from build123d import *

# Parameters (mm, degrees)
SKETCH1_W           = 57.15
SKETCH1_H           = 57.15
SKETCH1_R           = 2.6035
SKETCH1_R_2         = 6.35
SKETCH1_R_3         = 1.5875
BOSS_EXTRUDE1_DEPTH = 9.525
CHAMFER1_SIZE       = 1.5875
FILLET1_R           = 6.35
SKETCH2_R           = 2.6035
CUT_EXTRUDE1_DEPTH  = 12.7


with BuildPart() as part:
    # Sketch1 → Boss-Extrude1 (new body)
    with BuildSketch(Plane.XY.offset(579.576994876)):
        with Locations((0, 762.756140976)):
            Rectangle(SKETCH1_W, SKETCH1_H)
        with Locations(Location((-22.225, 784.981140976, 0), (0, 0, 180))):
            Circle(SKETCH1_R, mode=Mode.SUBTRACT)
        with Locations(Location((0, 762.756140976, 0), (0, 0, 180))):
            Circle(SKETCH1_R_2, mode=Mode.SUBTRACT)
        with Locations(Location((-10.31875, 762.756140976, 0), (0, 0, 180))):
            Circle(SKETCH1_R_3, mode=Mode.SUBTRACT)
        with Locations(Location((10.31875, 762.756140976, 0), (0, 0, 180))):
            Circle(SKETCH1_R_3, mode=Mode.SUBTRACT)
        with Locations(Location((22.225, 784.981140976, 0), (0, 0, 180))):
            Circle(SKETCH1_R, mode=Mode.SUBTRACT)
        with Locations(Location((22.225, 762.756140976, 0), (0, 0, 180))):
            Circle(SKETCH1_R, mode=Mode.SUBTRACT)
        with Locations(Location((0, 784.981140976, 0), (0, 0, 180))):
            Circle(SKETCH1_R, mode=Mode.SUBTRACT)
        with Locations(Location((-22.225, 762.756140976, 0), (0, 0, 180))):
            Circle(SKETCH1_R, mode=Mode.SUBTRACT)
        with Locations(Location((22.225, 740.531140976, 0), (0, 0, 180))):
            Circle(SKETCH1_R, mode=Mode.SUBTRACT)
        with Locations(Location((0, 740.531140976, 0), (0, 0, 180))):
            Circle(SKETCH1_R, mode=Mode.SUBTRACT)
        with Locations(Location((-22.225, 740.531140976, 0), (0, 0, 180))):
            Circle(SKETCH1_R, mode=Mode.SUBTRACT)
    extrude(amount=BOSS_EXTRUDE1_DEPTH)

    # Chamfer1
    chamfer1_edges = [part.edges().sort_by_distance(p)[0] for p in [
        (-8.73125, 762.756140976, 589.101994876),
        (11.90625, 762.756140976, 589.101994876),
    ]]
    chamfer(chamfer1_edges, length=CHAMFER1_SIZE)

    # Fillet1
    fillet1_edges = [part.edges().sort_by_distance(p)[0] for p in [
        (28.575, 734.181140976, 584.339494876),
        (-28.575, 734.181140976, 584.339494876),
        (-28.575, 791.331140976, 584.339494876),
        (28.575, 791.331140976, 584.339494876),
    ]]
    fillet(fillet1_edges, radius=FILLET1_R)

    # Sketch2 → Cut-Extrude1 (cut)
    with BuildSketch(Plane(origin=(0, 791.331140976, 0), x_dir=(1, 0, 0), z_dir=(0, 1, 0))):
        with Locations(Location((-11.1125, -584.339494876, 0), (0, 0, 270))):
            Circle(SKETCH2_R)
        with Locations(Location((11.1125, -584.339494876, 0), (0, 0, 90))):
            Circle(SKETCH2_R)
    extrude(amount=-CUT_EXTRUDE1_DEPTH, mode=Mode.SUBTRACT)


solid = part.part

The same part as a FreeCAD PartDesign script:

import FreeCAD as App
import Part
import Sketcher
from FreeCAD import Vector
Q = App.Units.Quantity


def edges_at(feature, points):
    """Names of the edges that pass closest to the given points."""
    edges = feature.Shape.Edges
    near = lambda p: min(range(len(edges)), key=lambda i: edges[i].distToShape(Part.Vertex(*p))[0])
    return sorted({f"Edge{near(p) + 1}" for p in points})


def add_polygon(sketch, points):
    """Adds a closed chain of lines whose ends are joined by coincident constraints."""
    first, n = sketch.GeometryCount, len(points)
    for a, b in zip(points, points[1:] + points[:1]):
        sketch.addGeometry(Part.LineSegment(App.Vector(*a, 0), App.Vector(*b, 0)), False)
    for i in range(n):
        sketch.addConstraint(Sketcher.Constraint("Coincident", first + i, 2, first + (i + 1) % n, 1))

doc = App.newDocument("Part")
params = doc.addObject("Spreadsheet::Sheet", "Params")
for row, (alias, value) in enumerate([
    ("sketch1_diameter", "0.5 in"),
    ("sketch1_diameter2", "0.205 in"),
    ("sketch1_diameter3", "0.125 in"),
    ("sketch1_width", "2.25 in"),
    ("pad1_length", "0.375 in"),
    ("chamfer_size", "0.0625 in"),
    ("fillet_radius", "0.25 in"),
    ("sketch2_diameter", "0.205 in"),
    ("pocket1_length", "0.5 in"),
], start=1):
    params.set(f"A{row}", alias)
    params.set(f"B{row}", "=" + value)
    params.setAlias(f"B{row}", alias)

body = doc.addObject("PartDesign::Body", "Body")

sketch1 = doc.addObject("Sketcher::SketchObject", "Sketch")
body.addObject(sketch1)
sketch1.AttachmentSupport = (doc.XY_Plane, [""])
sketch1.MapMode = "FlatFace"
sketch1.AttachmentOffset = App.Placement(Vector(0, 0, 579.576995), App.Rotation())
add_polygon(sketch1, [(-28.575, 791.331141), (-28.575, 734.181141), (28.575, 734.181141), (28.575, 791.331141)])
sketch1.addGeometry(Part.Circle(Vector(-22.225, 740.531141, 0), Vector(0, 0, 1), 2.6035), False)
sketch1.addGeometry(Part.Circle(Vector(0, 740.531141, 0), Vector(0, 0, 1), 2.6035), False)
sketch1.addGeometry(Part.Circle(Vector(-22.225, 762.756141, 0), Vector(0, 0, 1), 2.6035), False)
sketch1.addGeometry(Part.Circle(Vector(-10.31875, 762.756141, 0), Vector(0, 0, 1), 1.5875), False)
sketch1.addGeometry(Part.Circle(Vector(0, 762.756141, 0), Vector(0, 0, 1), 6.35), False)
sketch1.addGeometry(Part.Circle(Vector(22.225, 740.531141, 0), Vector(0, 0, 1), 2.6035), False)
sketch1.addGeometry(Part.Circle(Vector(10.31875, 762.756141, 0), Vector(0, 0, 1), 1.5875), False)
sketch1.addGeometry(Part.Circle(Vector(22.225, 762.756141, 0), Vector(0, 0, 1), 2.6035), False)
sketch1.addGeometry(Part.Circle(Vector(-22.225, 784.981141, 0), Vector(0, 0, 1), 2.6035), False)
sketch1.addGeometry(Part.Circle(Vector(0, 784.981141, 0), Vector(0, 0, 1), 2.6035), False)
sketch1.addGeometry(Part.Circle(Vector(22.225, 784.981141, 0), Vector(0, 0, 1), 2.6035), False)
sketch1.addConstraint([
    Sketcher.Constraint("Vertical", 0),
    Sketcher.Constraint("Horizontal", 1),
    Sketcher.Constraint("Vertical", 2),
    Sketcher.Constraint("Horizontal", 3),
    Sketcher.Constraint("Equal", 4, 5),
    Sketcher.Constraint("Equal", 5, 6),
    Sketcher.Constraint("Equal", 6, 9),
    Sketcher.Constraint("Equal", 7, 10),
    Sketcher.Constraint("Equal", 9, 11),
    Sketcher.Constraint("Equal", 11, 12),
    Sketcher.Constraint("Equal", 12, 13),
    Sketcher.Constraint("Equal", 13, 14),
    Sketcher.Constraint("Symmetric", 4, 3, 9, 3, -2),
    Sketcher.Constraint("Symmetric", 7, 3, 10, 3, -2),
    Sketcher.Constraint("Symmetric", 6, 3, 11, 3, -2),
    Sketcher.Constraint("Symmetric", 12, 3, 14, 3, -2),
    Sketcher.Constraint("PointOnObject", 5, 3, -2),
    Sketcher.Constraint("PointOnObject", 8, 3, -2),
    Sketcher.Constraint("PointOnObject", 13, 3, -2),
    Sketcher.Constraint("Horizontal", 4, 3, 5, 3),
    Sketcher.Constraint("Horizontal", 6, 3, 7, 3),
    Sketcher.Constraint("Horizontal", 7, 3, 8, 3),
    Sketcher.Constraint("Horizontal", 12, 3, 13, 3),
    Sketcher.Constraint("Vertical", 4, 3, 6, 3),
    Sketcher.Constraint("Vertical", 6, 3, 12, 3),
    Sketcher.Constraint("Equal", 3, 0),
    Sketcher.Constraint("Diameter", 8, Q("0.5 in")),
    Sketcher.Constraint("Diameter", 4, Q("0.205 in")),
    Sketcher.Constraint("Diameter", 7, Q("0.125 in")),
    Sketcher.Constraint("DistanceX", 1, 1, 1, 2, Q("2.25 in")),
    Sketcher.Constraint("DistanceX", 4, 3, 9, 3, Q("1.75 in")),
    Sketcher.Constraint("DistanceY", 4, 3, 12, 3, Q("1.75 in")),
    Sketcher.Constraint("DistanceX", 0, 2, 4, 3, Q("0.25 in")),
    Sketcher.Constraint("DistanceY", 0, 2, 4, 3, Q("0.25 in")),
    Sketcher.Constraint("DistanceX", 7, 3, -1, 1, Q("0.40625 in")),
    Sketcher.Constraint("DistanceY", 4, 3, 6, 3, Q("0.875 in")),
    Sketcher.Constraint("DistanceY", -1, 1, 4, 3, Q("740.531141 mm")),
])
sketch1.setExpression("Constraints[30]", "Params.sketch1_diameter")
sketch1.setExpression("Constraints[31]", "Params.sketch1_diameter2")
sketch1.setExpression("Constraints[32]", "Params.sketch1_diameter3")
sketch1.setExpression("Constraints[33]", "Params.sketch1_width")
pad1 = doc.addObject("PartDesign::Pad", "Pad")
body.addObject(pad1)
pad1.Profile = sketch1
pad1.setExpression("Length", "Params.pad1_length")
doc.recompute()

chamfer = doc.addObject("PartDesign::Chamfer", "Chamfer")
body.addObject(chamfer)
chamfer.Base = (pad1, edges_at(pad1, [(-8.731, 762.756, 589.102), (11.906, 762.756, 589.102)]))
chamfer.setExpression("Size", "Params.chamfer_size")
doc.recompute()

fillet = doc.addObject("PartDesign::Fillet", "Fillet")
body.addObject(fillet)
fillet.Base = (chamfer, edges_at(chamfer, [
    (28.575, 734.181, 584.339),
    (-28.575, 734.181, 584.339),
    (-28.575, 791.331, 584.339),
    (28.575, 791.331, 584.339),
]))
fillet.setExpression("Radius", "Params.fillet_radius")

sketch2 = doc.addObject("Sketcher::SketchObject", "Sketch001")
body.addObject(sketch2)
sketch2.AttachmentSupport = (doc.XZ_Plane, [""])
sketch2.MapMode = "FlatFace"
sketch2.AttachmentOffset = App.Placement(Vector(0, 0, -791.331141), App.Rotation())
sketch2.addGeometry([
    Part.Circle(Vector(-11.1125, 584.339495, 0), Vector(0, 0, 1), 2.6035),
    Part.Circle(Vector(11.1125, 584.339495, 0), Vector(0, 0, 1), 2.6035),
], False)
sketch2.addConstraint([
    Sketcher.Constraint("Equal", 0, 1),
    Sketcher.Constraint("Symmetric", 0, 3, 1, 3, -2),
    Sketcher.Constraint("Diameter", 0, Q("0.205 in")),
    Sketcher.Constraint("DistanceX", 0, 3, -1, 1, Q("0.4375 in")),
    Sketcher.Constraint("DistanceY", -1, 1, 0, 3, Q("584.339495 mm")),
])
sketch2.setExpression("Constraints[2]", "Params.sketch2_diameter")
pocket1 = doc.addObject("PartDesign::Pocket", "Pocket")
body.addObject(pocket1)
pocket1.Profile = sketch2
pocket1.setExpression("Length", "Params.pocket1_length")
pocket1.Reversed = True

doc.recompute()
